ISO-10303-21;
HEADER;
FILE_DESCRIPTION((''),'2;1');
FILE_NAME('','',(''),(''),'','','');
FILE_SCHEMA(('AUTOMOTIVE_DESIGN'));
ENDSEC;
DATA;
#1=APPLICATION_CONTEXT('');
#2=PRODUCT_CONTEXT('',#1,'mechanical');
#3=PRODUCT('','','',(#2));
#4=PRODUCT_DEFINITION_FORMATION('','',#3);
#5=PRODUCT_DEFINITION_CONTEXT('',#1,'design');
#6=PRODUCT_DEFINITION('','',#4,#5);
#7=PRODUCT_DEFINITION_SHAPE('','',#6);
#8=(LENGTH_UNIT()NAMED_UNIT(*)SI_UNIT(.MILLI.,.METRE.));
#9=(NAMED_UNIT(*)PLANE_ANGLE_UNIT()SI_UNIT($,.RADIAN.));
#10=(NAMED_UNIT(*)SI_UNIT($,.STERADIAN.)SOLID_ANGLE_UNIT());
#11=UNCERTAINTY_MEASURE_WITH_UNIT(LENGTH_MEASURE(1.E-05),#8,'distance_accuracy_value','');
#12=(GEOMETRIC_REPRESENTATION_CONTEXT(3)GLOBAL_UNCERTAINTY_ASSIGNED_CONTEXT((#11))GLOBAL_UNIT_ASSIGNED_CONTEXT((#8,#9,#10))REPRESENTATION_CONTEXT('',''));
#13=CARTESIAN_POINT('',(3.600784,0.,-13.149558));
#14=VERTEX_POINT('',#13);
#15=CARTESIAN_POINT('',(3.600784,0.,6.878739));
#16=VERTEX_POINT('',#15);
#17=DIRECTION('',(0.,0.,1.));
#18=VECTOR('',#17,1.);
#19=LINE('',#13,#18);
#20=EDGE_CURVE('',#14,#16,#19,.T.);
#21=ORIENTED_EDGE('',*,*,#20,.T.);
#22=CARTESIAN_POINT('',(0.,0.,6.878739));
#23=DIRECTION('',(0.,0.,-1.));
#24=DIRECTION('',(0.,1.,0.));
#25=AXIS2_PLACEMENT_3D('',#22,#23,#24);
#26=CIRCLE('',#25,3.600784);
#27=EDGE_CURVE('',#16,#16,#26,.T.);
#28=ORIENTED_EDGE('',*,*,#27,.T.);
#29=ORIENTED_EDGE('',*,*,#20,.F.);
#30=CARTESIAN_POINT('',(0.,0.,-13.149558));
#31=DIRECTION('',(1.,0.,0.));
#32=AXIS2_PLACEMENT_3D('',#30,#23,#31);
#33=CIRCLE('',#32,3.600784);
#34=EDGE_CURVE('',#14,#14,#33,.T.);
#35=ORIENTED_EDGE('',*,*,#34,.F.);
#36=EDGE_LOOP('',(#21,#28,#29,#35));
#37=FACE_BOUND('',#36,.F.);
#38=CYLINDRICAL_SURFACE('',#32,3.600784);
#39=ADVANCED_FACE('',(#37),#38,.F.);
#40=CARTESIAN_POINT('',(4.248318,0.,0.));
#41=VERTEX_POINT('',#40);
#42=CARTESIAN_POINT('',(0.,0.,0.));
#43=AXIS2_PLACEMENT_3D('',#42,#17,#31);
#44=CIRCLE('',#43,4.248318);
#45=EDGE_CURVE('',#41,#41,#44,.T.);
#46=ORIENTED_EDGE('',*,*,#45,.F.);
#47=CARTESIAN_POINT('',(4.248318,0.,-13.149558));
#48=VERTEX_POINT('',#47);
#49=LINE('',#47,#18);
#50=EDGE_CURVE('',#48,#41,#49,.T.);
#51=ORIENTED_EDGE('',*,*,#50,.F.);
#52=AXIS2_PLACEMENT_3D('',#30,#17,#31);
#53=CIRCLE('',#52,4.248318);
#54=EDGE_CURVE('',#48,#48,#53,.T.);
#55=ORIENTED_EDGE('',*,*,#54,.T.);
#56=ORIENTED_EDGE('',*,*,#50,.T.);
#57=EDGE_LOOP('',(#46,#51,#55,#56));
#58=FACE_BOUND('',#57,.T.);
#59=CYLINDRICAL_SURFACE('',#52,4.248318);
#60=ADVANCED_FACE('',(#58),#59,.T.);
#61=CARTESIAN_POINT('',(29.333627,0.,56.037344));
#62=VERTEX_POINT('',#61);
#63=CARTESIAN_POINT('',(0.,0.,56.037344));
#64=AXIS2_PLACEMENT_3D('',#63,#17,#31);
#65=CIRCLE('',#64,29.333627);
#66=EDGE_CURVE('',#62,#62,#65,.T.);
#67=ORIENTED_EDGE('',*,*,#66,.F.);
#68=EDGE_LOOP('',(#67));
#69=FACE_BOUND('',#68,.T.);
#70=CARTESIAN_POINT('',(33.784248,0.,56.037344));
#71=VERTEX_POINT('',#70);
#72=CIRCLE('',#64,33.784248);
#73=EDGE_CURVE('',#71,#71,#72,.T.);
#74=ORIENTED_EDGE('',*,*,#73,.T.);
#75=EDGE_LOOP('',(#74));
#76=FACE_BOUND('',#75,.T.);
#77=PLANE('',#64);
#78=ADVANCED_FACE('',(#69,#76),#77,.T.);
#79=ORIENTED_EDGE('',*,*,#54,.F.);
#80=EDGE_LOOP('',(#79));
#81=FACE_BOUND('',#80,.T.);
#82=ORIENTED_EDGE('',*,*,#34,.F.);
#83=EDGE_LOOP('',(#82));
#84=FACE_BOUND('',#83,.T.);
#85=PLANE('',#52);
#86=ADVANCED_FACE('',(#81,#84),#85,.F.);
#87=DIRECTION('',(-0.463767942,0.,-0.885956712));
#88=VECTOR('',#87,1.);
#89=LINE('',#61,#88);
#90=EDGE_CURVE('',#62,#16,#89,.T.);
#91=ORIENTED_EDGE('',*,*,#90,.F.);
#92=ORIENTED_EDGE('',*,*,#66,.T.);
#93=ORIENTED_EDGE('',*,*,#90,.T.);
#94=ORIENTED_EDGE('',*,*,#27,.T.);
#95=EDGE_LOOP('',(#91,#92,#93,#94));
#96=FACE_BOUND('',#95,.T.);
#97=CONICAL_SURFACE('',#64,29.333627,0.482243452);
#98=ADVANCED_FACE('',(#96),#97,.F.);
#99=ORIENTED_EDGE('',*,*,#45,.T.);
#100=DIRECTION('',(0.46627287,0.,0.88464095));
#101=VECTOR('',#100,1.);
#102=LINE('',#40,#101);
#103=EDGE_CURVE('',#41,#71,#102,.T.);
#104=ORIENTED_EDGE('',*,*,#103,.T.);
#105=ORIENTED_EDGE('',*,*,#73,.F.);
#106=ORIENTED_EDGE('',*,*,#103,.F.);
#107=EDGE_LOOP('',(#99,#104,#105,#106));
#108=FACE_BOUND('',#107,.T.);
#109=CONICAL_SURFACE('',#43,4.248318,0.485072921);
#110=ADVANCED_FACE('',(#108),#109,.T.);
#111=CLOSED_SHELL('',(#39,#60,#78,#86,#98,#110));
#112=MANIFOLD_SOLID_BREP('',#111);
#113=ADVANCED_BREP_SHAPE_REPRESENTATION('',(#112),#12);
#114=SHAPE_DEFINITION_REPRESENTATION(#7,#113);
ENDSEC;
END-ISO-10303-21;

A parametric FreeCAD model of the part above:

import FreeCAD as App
import Part
import Sketcher

V = App.Vector
Q = App.Units.Quantity


def add_polygon(sketch, points):
    """Adds a closed chain of lines whose ends are joined by coincident constraints."""
    first, n = sketch.GeometryCount, len(points)
    for a, b in zip(points, points[1:] + points[:1]):
        sketch.addGeometry(Part.LineSegment(App.Vector(*a, 0), App.Vector(*b, 0)), False)
    for i in range(n):
        sketch.addConstraint(Sketcher.Constraint("Coincident", first + i, 2, first + (i + 1) % n, 1))

doc = App.newDocument("Part")
body = doc.addObject("PartDesign::Body", "Body")

sketch1 = doc.addObject("Sketcher::SketchObject", "Sketch")
body.addObject(sketch1)
sketch1.AttachmentSupport = (doc.XZ_Plane, [""])
sketch1.MapMode = "FlatFace"
add_polygon(sketch1, [(33.8, 56), (29.3, 56), (0, 0), (0, -13.1), (4.2, -13.1), (4.2, 0)])
sketch1.addConstraint([
    Sketcher.Constraint("Horizontal", 0),
    Sketcher.Constraint("Vertical", 2),
    Sketcher.Constraint("Horizontal", 3),
    Sketcher.Constraint("Vertical", 4),
    Sketcher.Constraint("Coincident", 1, 2, -1, 1),
    Sketcher.Constraint("PointOnObject", 4, 2, -1),
    Sketcher.Constraint("DistanceX", 0, 2, 0, 1, 4.450621),
    Sketcher.Constraint("DistanceX", 3, 1, 3, 2, 4.248318),
    Sketcher.Constraint("DistanceY", 2, 2, 2, 1, 13.149558),
    Sketcher.Constraint("DistanceX", 3, 2, 0, 2, 25.085309),
    Sketcher.Constraint("Distance", 1, 63.250657),
])
revolution = doc.addObject("PartDesign::Revolution", "Revolution")
body.addObject(revolution)
revolution.Profile = sketch1
revolution.ReferenceAxis = (sketch1, ["V_Axis"])
revolution.Angle = 360

sketch2 = doc.addObject("Sketcher::SketchObject", "Sketch001")
body.addObject(sketch2)
sketch2.AttachmentSupport = (doc.XY_Plane, [""])
sketch2.MapMode = "FlatFace"
sketch2.AttachmentOffset = App.Placement(V(0, 0, -13.149558), App.Rotation())
sketch2.addGeometry(Part.Circle(V(0, 0, 0), V(0, 0, 1), 3.6), False)
sketch2.addConstraint([
    Sketcher.Constraint("Coincident", 0, 3, -1, 1),
    Sketcher.Constraint("Diameter", 0, 7.201568),
])
pocket1 = doc.addObject("PartDesign::Pocket", "Pocket")
body.addObject(pocket1)
pocket1.Profile = sketch2
pocket1.Length = Q("1 in")
pocket1.Reversed = True

doc.recompute()
